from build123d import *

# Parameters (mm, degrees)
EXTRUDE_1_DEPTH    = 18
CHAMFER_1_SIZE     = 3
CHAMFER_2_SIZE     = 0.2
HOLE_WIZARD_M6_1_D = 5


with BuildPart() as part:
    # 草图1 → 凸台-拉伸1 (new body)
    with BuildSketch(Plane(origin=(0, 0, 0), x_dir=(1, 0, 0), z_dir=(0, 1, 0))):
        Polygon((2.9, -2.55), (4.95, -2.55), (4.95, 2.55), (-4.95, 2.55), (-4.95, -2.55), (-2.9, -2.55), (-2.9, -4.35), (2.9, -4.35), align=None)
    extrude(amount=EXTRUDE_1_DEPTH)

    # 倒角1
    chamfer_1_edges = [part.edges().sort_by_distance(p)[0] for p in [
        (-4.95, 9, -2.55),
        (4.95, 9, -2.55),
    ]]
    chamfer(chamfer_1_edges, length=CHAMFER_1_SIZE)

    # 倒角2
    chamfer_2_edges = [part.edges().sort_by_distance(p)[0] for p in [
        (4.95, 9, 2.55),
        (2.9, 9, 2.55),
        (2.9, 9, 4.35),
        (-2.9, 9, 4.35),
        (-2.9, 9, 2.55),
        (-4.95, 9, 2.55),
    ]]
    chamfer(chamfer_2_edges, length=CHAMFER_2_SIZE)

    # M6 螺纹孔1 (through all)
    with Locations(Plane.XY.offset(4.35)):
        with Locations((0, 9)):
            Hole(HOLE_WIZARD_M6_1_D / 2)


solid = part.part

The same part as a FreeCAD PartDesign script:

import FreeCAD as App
import Part
import Sketcher

V = App.Vector
Q = App.Units.Quantity


def edges_at(feature, points):
    """Names of the edges that pass closest to the given points."""
    edges = feature.Shape.Edges
    near = lambda p: min(range(len(edges)), key=lambda i: edges[i].distToShape(Part.Vertex(*p))[0])
    return sorted({f"Edge{near(p) + 1}" for p in points})

doc = App.newDocument("Part")
body = doc.addObject("PartDesign::Body", "Body")

# Sketch on XZ plane
sketch1 = body.newObject("Sketcher::SketchObject", "Sketch")
sketch1.AttachmentSupport = (doc.getObject("XZ_Plane"), [""])
sketch1.MapMode = "FlatFace"
sketch1.addGeometry([
    Part.LineSegment(V(2.9, 2.5, 0), V(5, 2.5, 0)),  # 0
    Part.LineSegment(V(5, 2.5, 0), V(5, -2.5, 0)),  # 1
    Part.LineSegment(V(5, -2.5, 0), V(-5, -2.5, 0)),  # 2
    Part.LineSegment(V(-5, -2.5, 0), V(-5, 2.5, 0)),  # 3
    Part.LineSegment(V(-5, 2.5, 0), V(-2.9, 2.5, 0)),  # 4
    Part.LineSegment(V(-2.9, 2.5, 0), V(-2.9, 4.3, 0)),  # 5
    Part.LineSegment(V(-2.9, 4.3, 0), V(2.9, 4.3, 0)),  # 6
    Part.LineSegment(V(2.9, 4.3, 0), V(2.9, 2.5, 0)),  # 7
], False)
sketch1.addConstraint([
    Sketcher.Constraint("Coincident", 0, 2, 1, 1),
    Sketcher.Constraint("Coincident", 1, 2, 2, 1),
    Sketcher.Constraint("Coincident", 2, 2, 3, 1),
    Sketcher.Constraint("Coincident", 3, 2, 4, 1),
    Sketcher.Constraint("Coincident", 4, 2, 5, 1),
    Sketcher.Constraint("Coincident", 5, 2, 6, 1),
    Sketcher.Constraint("Coincident", 6, 2, 7, 1),
    Sketcher.Constraint("Coincident", 7, 2, 0, 1),
    Sketcher.Constraint("Horizontal", 0),
    Sketcher.Constraint("Vertical", 1),
    Sketcher.Constraint("Horizontal", 2),
    Sketcher.Constraint("Vertical", 3),
    Sketcher.Constraint("Horizontal", 4),
    Sketcher.Constraint("Vertical", 5),
    Sketcher.Constraint("Horizontal", 6),
    Sketcher.Constraint("Vertical", 7),
    Sketcher.Constraint("Symmetric", 0, 2, 2, 2, -1, 1),
    Sketcher.Constraint("Symmetric", 4, 2, 7, 2, -2),
    Sketcher.Constraint("DistanceX", 2, 2, 2, 1, Q("9.9 mm")),
    Sketcher.Constraint("DistanceX", 6, 1, 6, 2, Q("5.8 mm")),
    Sketcher.Constraint("DistanceY", 1, 2, 1, 1, Q("5.1 mm")),
    Sketcher.Constraint("DistanceY", 5, 1, 5, 2, Q("1.8 mm")),
])
pad1 = body.newObject("PartDesign::Pad", "Pad")
pad1.Profile = sketch1
pad1.Length = 18
pad1.Reversed = True
doc.recompute()

chamfer = body.newObject("PartDesign::Chamfer", "Chamfer")
chamfer.Base = (pad1, edges_at(pad1, [(-4.95, 9, -2.55), (4.95, 9, -2.55)]))
chamfer.Size = 3
doc.recompute()

chamfer2 = body.newObject("PartDesign::Chamfer", "Chamfer001")
chamfer2.Base = (chamfer, edges_at(chamfer, [
    (4.95, 9, 2.55),
    (2.9, 9, 2.55),
    (2.9, 9, 4.35),
    (-2.9, 9, 4.35),
    (-2.9, 9, 2.55),
    (-4.95, 9, 2.55),
]))
chamfer2.Size = 0.2

# Sketch on XY plane
sketch2 = body.newObject("Sketcher::SketchObject", "Sketch001")
sketch2.AttachmentSupport = (doc.getObject("XY_Plane"), [""])
sketch2.MapMode = "FlatFace"
sketch2.AttachmentOffset = App.Placement(V(0, 0, 4.35), App.Rotation())
sketch2.addGeometry(Part.Circle(V(0, 9, 0), V(0, 0, 1), 2.5), False)
sketch2.addConstraint([
    Sketcher.Constraint("PointOnObject", 0, 3, -2),
    Sketcher.Constraint("Diameter", 0, Q("5 mm")),
    Sketcher.Constraint("DistanceY", -1, 1, 0, 3, Q("9 mm")),
])
doc.recompute()
hole = body.newObject("PartDesign::Hole", "Hole")
hole.Profile = sketch2
hole.ThreadType = "None"
hole.Diameter = 5
hole.DepthType = "ThroughAll"

doc.recompute()
